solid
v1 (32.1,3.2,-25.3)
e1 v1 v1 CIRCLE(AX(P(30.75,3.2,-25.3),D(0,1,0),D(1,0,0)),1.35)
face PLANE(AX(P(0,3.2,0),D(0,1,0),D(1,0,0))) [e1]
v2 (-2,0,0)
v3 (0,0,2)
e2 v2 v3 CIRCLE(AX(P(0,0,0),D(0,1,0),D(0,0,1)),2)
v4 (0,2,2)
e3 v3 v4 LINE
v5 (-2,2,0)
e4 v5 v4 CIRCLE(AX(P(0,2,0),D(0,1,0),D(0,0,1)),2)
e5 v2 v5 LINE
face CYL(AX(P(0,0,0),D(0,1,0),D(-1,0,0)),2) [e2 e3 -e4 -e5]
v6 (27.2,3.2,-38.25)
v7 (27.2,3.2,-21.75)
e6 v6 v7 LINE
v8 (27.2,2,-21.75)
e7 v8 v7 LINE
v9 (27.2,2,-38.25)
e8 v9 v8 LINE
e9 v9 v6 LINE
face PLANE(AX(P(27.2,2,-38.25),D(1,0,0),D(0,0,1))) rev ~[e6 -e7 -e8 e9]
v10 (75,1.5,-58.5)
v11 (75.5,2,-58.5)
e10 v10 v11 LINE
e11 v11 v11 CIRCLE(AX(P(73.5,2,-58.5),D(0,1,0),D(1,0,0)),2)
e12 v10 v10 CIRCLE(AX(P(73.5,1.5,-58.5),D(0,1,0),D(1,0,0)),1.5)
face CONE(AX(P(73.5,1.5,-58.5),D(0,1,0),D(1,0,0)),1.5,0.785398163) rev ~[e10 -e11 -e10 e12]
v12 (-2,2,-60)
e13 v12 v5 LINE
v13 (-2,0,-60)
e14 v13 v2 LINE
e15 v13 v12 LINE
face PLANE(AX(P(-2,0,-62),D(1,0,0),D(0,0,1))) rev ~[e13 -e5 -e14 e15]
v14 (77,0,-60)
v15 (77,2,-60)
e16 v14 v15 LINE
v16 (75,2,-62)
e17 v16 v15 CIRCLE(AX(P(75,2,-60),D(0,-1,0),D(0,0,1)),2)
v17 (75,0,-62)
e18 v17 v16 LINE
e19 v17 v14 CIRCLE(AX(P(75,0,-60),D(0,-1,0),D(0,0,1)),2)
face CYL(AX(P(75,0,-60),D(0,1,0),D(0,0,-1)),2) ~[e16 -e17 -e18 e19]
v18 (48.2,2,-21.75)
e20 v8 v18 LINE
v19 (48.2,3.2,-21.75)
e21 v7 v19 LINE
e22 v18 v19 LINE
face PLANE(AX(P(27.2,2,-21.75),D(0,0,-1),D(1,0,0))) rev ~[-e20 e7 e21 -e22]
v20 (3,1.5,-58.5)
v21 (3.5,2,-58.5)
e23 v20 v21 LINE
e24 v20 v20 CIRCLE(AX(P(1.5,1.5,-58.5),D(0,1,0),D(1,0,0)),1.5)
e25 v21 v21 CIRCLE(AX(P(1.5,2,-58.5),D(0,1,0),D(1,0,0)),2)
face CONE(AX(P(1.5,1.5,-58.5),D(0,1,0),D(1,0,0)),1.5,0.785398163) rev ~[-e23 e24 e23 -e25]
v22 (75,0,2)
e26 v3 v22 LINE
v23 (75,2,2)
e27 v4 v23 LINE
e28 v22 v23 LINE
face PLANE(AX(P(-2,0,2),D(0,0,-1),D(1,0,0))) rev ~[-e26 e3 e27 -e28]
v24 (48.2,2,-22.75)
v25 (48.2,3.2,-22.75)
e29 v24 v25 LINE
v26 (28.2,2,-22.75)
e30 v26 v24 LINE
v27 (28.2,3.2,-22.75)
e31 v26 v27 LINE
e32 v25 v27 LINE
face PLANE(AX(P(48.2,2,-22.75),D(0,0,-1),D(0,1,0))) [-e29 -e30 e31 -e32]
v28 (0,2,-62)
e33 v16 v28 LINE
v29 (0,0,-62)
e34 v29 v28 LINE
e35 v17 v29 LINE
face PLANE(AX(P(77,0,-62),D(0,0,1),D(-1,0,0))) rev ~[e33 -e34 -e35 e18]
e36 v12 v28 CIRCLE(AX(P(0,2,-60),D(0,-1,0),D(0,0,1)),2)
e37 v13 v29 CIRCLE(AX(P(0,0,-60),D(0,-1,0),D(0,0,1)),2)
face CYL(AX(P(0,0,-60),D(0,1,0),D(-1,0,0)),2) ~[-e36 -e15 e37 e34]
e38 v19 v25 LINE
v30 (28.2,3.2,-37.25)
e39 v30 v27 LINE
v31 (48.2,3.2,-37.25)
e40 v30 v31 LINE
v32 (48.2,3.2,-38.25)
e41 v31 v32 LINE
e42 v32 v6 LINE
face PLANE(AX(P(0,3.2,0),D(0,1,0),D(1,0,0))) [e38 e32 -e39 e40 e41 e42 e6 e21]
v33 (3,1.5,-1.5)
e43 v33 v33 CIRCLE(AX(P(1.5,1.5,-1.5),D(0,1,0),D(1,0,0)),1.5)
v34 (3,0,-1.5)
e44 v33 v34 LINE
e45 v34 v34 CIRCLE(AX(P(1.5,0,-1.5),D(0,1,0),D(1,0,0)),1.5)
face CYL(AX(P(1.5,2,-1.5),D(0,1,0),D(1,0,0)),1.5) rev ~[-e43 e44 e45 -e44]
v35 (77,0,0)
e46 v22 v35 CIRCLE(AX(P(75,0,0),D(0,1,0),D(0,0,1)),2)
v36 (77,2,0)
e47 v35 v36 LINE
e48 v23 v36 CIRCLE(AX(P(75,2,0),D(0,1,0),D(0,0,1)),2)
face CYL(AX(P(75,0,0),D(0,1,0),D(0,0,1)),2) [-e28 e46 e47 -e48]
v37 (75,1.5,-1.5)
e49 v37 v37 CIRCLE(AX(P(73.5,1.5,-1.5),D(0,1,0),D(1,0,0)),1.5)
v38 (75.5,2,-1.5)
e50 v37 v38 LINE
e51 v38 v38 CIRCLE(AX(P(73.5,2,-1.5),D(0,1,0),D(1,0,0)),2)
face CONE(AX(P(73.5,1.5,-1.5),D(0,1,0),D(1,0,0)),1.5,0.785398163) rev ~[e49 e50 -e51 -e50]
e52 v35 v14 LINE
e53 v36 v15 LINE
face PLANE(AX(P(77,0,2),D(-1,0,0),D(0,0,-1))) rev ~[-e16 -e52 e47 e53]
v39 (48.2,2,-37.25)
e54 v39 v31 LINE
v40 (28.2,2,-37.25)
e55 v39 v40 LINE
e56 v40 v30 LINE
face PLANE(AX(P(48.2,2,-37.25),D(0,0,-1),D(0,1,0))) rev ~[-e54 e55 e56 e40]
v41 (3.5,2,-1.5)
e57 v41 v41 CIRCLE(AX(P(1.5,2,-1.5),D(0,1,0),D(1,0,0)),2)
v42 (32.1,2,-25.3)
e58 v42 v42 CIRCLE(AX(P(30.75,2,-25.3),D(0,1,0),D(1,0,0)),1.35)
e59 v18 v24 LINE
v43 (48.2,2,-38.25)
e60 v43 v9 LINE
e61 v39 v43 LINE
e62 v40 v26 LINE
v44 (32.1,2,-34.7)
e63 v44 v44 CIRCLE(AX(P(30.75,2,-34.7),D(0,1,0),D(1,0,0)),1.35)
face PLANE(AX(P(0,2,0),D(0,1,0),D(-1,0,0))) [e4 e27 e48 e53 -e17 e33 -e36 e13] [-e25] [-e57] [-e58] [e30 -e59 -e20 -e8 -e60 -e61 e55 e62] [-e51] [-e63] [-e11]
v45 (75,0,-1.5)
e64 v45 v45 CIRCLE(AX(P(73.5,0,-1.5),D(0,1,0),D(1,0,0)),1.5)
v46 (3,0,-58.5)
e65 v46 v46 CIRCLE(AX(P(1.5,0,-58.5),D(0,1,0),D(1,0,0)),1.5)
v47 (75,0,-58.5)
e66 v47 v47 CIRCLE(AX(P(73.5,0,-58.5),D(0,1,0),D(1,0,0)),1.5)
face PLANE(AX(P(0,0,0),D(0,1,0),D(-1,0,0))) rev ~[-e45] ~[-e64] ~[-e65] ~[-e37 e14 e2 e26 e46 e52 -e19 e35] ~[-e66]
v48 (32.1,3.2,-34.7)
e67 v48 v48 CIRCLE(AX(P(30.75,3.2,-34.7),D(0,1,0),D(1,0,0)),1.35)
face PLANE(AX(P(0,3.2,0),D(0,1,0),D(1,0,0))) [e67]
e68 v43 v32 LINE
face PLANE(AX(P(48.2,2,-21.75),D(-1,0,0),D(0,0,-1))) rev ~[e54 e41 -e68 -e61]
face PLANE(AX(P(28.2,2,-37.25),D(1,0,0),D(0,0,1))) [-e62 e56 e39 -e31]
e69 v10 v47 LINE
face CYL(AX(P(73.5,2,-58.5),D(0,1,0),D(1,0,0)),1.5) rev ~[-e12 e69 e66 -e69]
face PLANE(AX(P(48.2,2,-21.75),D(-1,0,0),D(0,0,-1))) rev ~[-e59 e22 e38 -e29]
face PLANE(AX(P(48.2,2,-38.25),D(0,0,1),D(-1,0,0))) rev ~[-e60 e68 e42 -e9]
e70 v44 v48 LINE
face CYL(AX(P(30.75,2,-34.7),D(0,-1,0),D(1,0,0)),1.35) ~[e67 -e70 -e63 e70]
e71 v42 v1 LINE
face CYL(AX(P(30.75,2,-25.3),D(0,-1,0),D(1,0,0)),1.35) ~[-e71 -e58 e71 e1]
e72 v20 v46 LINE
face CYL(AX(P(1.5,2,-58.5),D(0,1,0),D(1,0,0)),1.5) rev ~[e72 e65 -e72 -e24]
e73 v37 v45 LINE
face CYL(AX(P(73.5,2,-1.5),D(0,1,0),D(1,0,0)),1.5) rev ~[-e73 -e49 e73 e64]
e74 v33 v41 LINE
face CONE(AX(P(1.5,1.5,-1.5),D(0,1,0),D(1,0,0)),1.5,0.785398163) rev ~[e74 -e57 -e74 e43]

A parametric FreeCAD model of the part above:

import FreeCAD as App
import Part
import Sketcher

V = App.Vector
Q = App.Units.Quantity


def edges_at(feature, points):
    """Names of the edges that pass closest to the given points."""
    edges = feature.Shape.Edges
    near = lambda p: min(range(len(edges)), key=lambda i: edges[i].distToShape(Part.Vertex(*p))[0])
    return sorted({f"Edge{near(p) + 1}" for p in points})


def add_polygon(sketch, points):
    """Adds a closed chain of lines whose ends are joined by coincident constraints."""
    first, n = sketch.GeometryCount, len(points)
    for a, b in zip(points, points[1:] + points[:1]):
        sketch.addGeometry(Part.LineSegment(App.Vector(*a, 0), App.Vector(*b, 0)), False)
    for i in range(n):
        sketch.addConstraint(Sketcher.Constraint("Coincident", first + i, 2, first + (i + 1) % n, 1))

doc = App.newDocument("Part")
body = doc.addObject("PartDesign::Body", "Body")

# Sketch on XZ plane
sketch1 = body.newObject("Sketcher::SketchObject", "Sketch")
sketch1.AttachmentSupport = (doc.getObject("XZ_Plane"), [""])
sketch1.MapMode = "FlatFace"
add_polygon(sketch1, [(-2, -62), (-2, 2), (77, 2), (77, -62)])  # lines 0-3
sketch1.addConstraint(Sketcher.Constraint("Vertical", 0))
sketch1.addConstraint(Sketcher.Constraint("Horizontal", 1))
sketch1.addConstraint(Sketcher.Constraint("Vertical", 2))
sketch1.addConstraint(Sketcher.Constraint("Horizontal", 3))
sketch1.addConstraint(Sketcher.Constraint("DistanceX", 0, 2, -1, 1, Q("2 mm")))
sketch1.addConstraint(Sketcher.Constraint("DistanceY", -1, 1, 0, 2, Q("2 mm")))
sketch1.addConstraint(Sketcher.Constraint("DistanceX", 1, 1, 1, 2, Q("79 mm")))
sketch1.addConstraint(Sketcher.Constraint("DistanceY", 0, 1, 0, 2, Q("64 mm")))
pad1 = body.newObject("PartDesign::Pad", "Pad")
pad1.Profile = sketch1
pad1.Length = 2
pad1.Reversed = True

# Sketch on XZ plane
sketch2 = body.newObject("Sketcher::SketchObject", "Sketch001")
sketch2.AttachmentSupport = (doc.getObject("XZ_Plane"), [""])
sketch2.MapMode = "FlatFace"
sketch2.AttachmentOffset = App.Placement(V(0, 0, -2), App.Rotation())
sketch2.addGeometry(Part.Circle(V(1.5, -1.5, 0), V(0, 0, 1), 1.5), False)
sketch2.addGeometry(Part.Circle(V(1.5, -58.5, 0), V(0, 0, 1), 1.5), False)
sketch2.addGeometry(Part.Circle(V(73.5, -58.5, 0), V(0, 0, 1), 1.5), False)
sketch2.addGeometry(Part.Circle(V(73.5, -1.5, 0), V(0, 0, 1), 1.5), False)
sketch2.addConstraint(Sketcher.Constraint("Equal", 0, 1))
sketch2.addConstraint(Sketcher.Constraint("Equal", 1, 2))
sketch2.addConstraint(Sketcher.Constraint("Equal", 2, 3))
sketch2.addConstraint(Sketcher.Constraint("Horizontal", 1, 3, 2, 3))
sketch2.addConstraint(Sketcher.Constraint("Horizontal", 0, 3, 3, 3))
sketch2.addConstraint(Sketcher.Constraint("Vertical", 0, 3, 1, 3))
sketch2.addConstraint(Sketcher.Constraint("Vertical", 2, 3, 3, 3))
sketch2.addConstraint(Sketcher.Constraint("Diameter", 0, Q("3 mm")))
sketch2.addConstraint(Sketcher.Constraint("DistanceY", 1, 3, 0, 3, Q("57 mm")))
sketch2.addConstraint(Sketcher.Constraint("DistanceX", 1, 3, 2, 3, Q("72 mm")))
sketch2.addConstraint(Sketcher.Constraint("DistanceX", -1, 1, 0, 3, Q("1.5 mm")))
sketch2.addConstraint(Sketcher.Constraint("DistanceY", 0, 3, -1, 1, Q("1.5 mm")))
pocket1 = body.newObject("PartDesign::Pocket", "Pocket")
pocket1.Profile = sketch2
pocket1.Length = 2
pocket1.Reversed = True
doc.recompute()

chamfer = body.newObject("PartDesign::Chamfer", "Chamfer")
chamfer.Base = (pocket1, edges_at(pocket1, [
    (0, 2, -1.5),
    (0, 2, -58.5),
    (72, 2, -58.5),
    (72, 2, -1.5),
]))
chamfer.Size = 0.5
doc.recompute()

fillet = body.newObject("PartDesign::Fillet", "Fillet")
fillet.Base = (chamfer, edges_at(chamfer, [
    (77, 1, 2),
    (77, 1, -62),
    (-2, 1, -62),
    (-2, 1, 2),
]))
fillet.Radius = 2

# Sketch on XZ plane
sketch3 = body.newObject("Sketcher::SketchObject", "Sketch002")
sketch3.AttachmentSupport = (doc.getObject("XZ_Plane"), [""])
sketch3.MapMode = "FlatFace"
sketch3.AttachmentOffset = App.Placement(V(0, 0, -2), App.Rotation())
add_polygon(sketch3, [(27.2, -38.25), (27.2, -21.75), (48.2, -21.75), (48.2, -38.25)])  # lines 0-3
add_polygon(sketch3, [(47.2, -22.75), (28.2, -22.75), (28.2, -37.25), (47.2, -37.25)])  # lines 4-7
sketch3.addConstraint(Sketcher.Constraint("Vertical", 0))
sketch3.addConstraint(Sketcher.Constraint("Horizontal", 1))
sketch3.addConstraint(Sketcher.Constraint("Vertical", 2))
sketch3.addConstraint(Sketcher.Constraint("Horizontal", 3))
sketch3.addConstraint(Sketcher.Constraint("Horizontal", 4))
sketch3.addConstraint(Sketcher.Constraint("Vertical", 5))
sketch3.addConstraint(Sketcher.Constraint("Horizontal", 6))
sketch3.addConstraint(Sketcher.Constraint("Vertical", 7))
sketch3.addConstraint(Sketcher.Constraint("DistanceX", 4, 2, 4, 1, Q("19 mm")))
sketch3.addConstraint(Sketcher.Constraint("DistanceY", 5, 2, 5, 1, Q("14.5 mm")))
sketch3.addConstraint(Sketcher.Constraint("DistanceX", 0, 2, 4, 2, Q("1 mm")))
sketch3.addConstraint(Sketcher.Constraint("DistanceY", 4, 2, 0, 2, Q("1 mm")))
sketch3.addConstraint(Sketcher.Constraint("DistanceY", 3, 2, 5, 2, Q("1 mm")))
sketch3.addConstraint(Sketcher.Constraint("DistanceX", 6, 2, 2, 2, Q("1 mm")))
sketch3.addConstraint(Sketcher.Constraint("DistanceX", -1, 1, 0, 2, Q("27.2 mm")))
sketch3.addConstraint(Sketcher.Constraint("DistanceY", 0, 2, -1, 1, Q("21.75 mm")))
pad2 = body.newObject("PartDesign::Pad", "Pad001")
pad2.Profile = sketch3
pad2.Length = 1.2
pad2.Reversed = True

# Sketch on XZ plane
sketch4 = body.newObject("Sketcher::SketchObject", "Sketch003")
sketch4.AttachmentSupport = (doc.getObject("XZ_Plane"), [""])
sketch4.MapMode = "FlatFace"
sketch4.AttachmentOffset = App.Placement(V(0, 0, -2), App.Rotation())
sketch4.addGeometry(Part.Circle(V(30.75, -25.3, 0), V(0, 0, 1), 1.35), False)
sketch4.addGeometry(Part.Circle(V(30.75, -34.7, 0), V(0, 0, 1), 1.35), False)
sketch4.addConstraint(Sketcher.Constraint("Equal", 0, 1))
sketch4.addConstraint(Sketcher.Constraint("Vertical", 0, 3, 1, 3))
sketch4.addConstraint(Sketcher.Constraint("Diameter", 0, Q("2.7 mm")))
sketch4.addConstraint(Sketcher.Constraint("DistanceY", 1, 3, 0, 3, Q("9.4 mm")))
sketch4.addConstraint(Sketcher.Constraint("DistanceY", 0, 3, -1, 1, Q("25.3 mm")))
sketch4.addConstraint(Sketcher.Constraint("DistanceX", -1, 1, 0, 3, Q("30.75 mm")))
pad3 = body.newObject("PartDesign::Pad", "Pad002")
pad3.Profile = sketch4
pad3.Length = 1.2
pad3.Reversed = True

# Sketch on YZ plane
sketch5 = body.newObject("Sketcher::SketchObject", "Sketch004")
sketch5.AttachmentSupport = (doc.getObject("YZ_Plane"), [""])
sketch5.MapMode = "FlatFace"
sketch5.AttachmentOffset = App.Placement(V(0, 0, 48.2), App.Rotation())
add_polygon(sketch5, [(3.2, -22.75), (2, -22.75), (2, -37.25), (3.2, -37.25)])  # lines 0-3
sketch5.addConstraint(Sketcher.Constraint("Horizontal", 0))
sketch5.addConstraint(Sketcher.Constraint("Vertical", 1))
sketch5.addConstraint(Sketcher.Constraint("Horizontal", 2))
sketch5.addConstraint(Sketcher.Constraint("Vertical", 3))
sketch5.addConstraint(Sketcher.Constraint("DistanceX", 0, 2, 0, 1, Q("1.2 mm")))
sketch5.addConstraint(Sketcher.Constraint("DistanceY", 1, 2, 1, 1, Q("14.5 mm")))
sketch5.addConstraint(Sketcher.Constraint("DistanceX", -1, 1, 0, 2, Q("2 mm")))
sketch5.addConstraint(Sketcher.Constraint("DistanceY", 0, 2, -1, 1, Q("22.75 mm")))
pocket2 = body.newObject("PartDesign::Pocket", "Pocket001")
pocket2.Profile = sketch5
pocket2.Length = 1.2

doc.recompute()
